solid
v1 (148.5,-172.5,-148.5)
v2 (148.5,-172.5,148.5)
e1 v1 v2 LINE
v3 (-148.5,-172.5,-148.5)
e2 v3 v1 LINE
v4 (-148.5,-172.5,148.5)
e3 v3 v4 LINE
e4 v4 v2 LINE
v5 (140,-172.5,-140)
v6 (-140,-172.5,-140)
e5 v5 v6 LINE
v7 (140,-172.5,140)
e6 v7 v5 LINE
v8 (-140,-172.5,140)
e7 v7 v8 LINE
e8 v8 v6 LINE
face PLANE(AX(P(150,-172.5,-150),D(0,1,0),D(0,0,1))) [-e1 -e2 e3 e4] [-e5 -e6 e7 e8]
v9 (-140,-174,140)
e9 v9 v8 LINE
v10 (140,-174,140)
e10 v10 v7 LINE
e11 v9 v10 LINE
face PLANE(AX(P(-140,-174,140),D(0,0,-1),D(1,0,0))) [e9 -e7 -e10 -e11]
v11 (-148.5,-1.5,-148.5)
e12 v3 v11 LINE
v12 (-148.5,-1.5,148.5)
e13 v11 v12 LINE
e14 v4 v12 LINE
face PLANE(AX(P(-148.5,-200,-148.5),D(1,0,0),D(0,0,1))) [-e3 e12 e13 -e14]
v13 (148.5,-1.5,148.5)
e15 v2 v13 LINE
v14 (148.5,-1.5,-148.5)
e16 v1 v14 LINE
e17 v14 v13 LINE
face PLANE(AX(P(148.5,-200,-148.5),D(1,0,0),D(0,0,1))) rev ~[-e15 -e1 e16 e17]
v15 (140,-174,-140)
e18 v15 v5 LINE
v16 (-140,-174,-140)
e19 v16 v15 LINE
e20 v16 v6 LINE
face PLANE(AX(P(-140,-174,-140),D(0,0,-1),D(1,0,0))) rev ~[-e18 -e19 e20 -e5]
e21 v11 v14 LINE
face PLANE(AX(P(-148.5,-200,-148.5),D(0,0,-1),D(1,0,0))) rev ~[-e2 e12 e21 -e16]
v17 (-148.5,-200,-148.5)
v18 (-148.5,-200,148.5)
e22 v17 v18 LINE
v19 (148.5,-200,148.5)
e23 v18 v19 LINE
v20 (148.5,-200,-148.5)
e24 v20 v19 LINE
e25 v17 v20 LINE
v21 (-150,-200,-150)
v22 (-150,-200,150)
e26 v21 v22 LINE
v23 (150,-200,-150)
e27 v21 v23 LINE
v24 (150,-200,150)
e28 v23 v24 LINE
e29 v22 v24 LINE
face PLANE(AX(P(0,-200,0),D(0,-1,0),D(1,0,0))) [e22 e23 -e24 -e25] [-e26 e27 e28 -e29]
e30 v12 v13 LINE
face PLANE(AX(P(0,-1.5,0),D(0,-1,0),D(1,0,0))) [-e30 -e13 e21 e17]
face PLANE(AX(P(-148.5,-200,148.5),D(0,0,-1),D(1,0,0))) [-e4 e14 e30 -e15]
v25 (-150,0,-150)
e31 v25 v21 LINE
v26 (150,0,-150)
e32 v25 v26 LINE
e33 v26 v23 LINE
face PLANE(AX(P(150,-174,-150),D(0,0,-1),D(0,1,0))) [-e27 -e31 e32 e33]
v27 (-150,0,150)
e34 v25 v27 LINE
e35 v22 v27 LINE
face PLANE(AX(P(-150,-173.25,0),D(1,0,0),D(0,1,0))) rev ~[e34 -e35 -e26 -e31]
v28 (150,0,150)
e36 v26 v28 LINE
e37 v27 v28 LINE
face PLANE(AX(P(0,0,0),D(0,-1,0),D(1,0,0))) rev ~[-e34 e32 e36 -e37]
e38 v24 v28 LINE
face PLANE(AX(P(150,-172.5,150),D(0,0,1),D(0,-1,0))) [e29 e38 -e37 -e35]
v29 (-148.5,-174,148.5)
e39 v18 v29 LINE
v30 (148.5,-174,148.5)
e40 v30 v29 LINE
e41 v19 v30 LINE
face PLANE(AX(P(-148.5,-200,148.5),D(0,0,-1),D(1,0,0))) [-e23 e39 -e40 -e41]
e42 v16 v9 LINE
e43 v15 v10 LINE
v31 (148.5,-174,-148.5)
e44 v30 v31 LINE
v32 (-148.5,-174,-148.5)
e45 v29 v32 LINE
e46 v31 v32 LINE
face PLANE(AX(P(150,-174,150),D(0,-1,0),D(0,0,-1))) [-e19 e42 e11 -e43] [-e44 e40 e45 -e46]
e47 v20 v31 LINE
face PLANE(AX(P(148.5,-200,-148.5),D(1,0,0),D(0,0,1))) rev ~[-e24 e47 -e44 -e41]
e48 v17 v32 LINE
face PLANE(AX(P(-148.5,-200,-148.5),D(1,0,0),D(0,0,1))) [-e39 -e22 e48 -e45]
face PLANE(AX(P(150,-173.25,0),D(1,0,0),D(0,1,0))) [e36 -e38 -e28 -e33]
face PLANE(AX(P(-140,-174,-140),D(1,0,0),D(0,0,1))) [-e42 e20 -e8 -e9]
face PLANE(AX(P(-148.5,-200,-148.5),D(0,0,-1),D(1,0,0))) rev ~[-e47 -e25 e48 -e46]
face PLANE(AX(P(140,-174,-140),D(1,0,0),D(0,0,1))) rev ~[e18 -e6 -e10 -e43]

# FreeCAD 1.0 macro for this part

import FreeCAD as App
import Part
import Sketcher

doc = App.newDocument("Part")
body = doc.addObject("PartDesign::Body", "Body")

sketch1 = doc.addObject("Sketcher::SketchObject", "Sketch")
body.addObject(sketch1)
sketch1.AttachmentSupport = (doc.XZ_Plane, [""])
sketch1.MapMode = "FlatFace"
sketch1.addGeometry(Part.LineSegment(App.Vector(-150, 150, 0), App.Vector(-150, -150, 0)), False)
sketch1.addGeometry(Part.LineSegment(App.Vector(-150, -150, 0), App.Vector(150, -150, 0)), False)
sketch1.addGeometry(Part.LineSegment(App.Vector(150, -150, 0), App.Vector(150, 150, 0)), False)
sketch1.addGeometry(Part.LineSegment(App.Vector(150, 150, 0), App.Vector(-150, 150, 0)), False)
sketch1.addConstraint(Sketcher.Constraint("Coincident", 0, 2, 1, 1))
sketch1.addConstraint(Sketcher.Constraint("Coincident", 1, 2, 2, 1))
sketch1.addConstraint(Sketcher.Constraint("Coincident", 2, 2, 3, 1))
sketch1.addConstraint(Sketcher.Constraint("Coincident", 3, 2, 0, 1))
sketch1.addConstraint(Sketcher.Constraint("Vertical", 0))
sketch1.addConstraint(Sketcher.Constraint("Horizontal", 1))
sketch1.addConstraint(Sketcher.Constraint("Vertical", 2))
sketch1.addConstraint(Sketcher.Constraint("Horizontal", 3))
sketch1.addConstraint(Sketcher.Constraint("Symmetric", 0, 2, 2, 2, -1, 1))
sketch1.addConstraint(Sketcher.Constraint("Equal", 3, 0))
sketch1.addConstraint(Sketcher.Constraint("DistanceX", 1, 1, 1, 2, 300.0))
pad1 = doc.addObject("PartDesign::Pad", "Pad")
body.addObject(pad1)
pad1.Profile = sketch1
pad1.Length = 200

sketch2 = doc.addObject("Sketcher::SketchObject", "Sketch001")
body.addObject(sketch2)
sketch2.AttachmentSupport = (doc.XZ_Plane, [""])
sketch2.MapMode = "FlatFace"
sketch2.AttachmentOffset = App.Placement(App.Vector(0, 0, 200), App.Rotation())
sketch2.addGeometry(Part.LineSegment(App.Vector(-148, 148, 0), App.Vector(-148, -148, 0)), False)
sketch2.addGeometry(Part.LineSegment(App.Vector(-148, -148, 0), App.Vector(148, -148, 0)), False)
sketch2.addGeometry(Part.LineSegment(App.Vector(148, -148, 0), App.Vector(148, 148, 0)), False)
sketch2.addGeometry(Part.LineSegment(App.Vector(148, 148, 0), App.Vector(-148, 148, 0)), False)
sketch2.addConstraint(Sketcher.Constraint("Coincident", 0, 2, 1, 1))
sketch2.addConstraint(Sketcher.Constraint("Coincident", 1, 2, 2, 1))
sketch2.addConstraint(Sketcher.Constraint("Coincident", 2, 2, 3, 1))
sketch2.addConstraint(Sketcher.Constraint("Coincident", 3, 2, 0, 1))
sketch2.addConstraint(Sketcher.Constraint("Vertical", 0))
sketch2.addConstraint(Sketcher.Constraint("Horizontal", 1))
sketch2.addConstraint(Sketcher.Constraint("Vertical", 2))
sketch2.addConstraint(Sketcher.Constraint("Horizontal", 3))
sketch2.addConstraint(Sketcher.Constraint("Symmetric", 0, 2, 2, 2, -1, 1))
sketch2.addConstraint(Sketcher.Constraint("Equal", 3, 0))
sketch2.addConstraint(Sketcher.Constraint("DistanceX", 1, 1, 1, 2, 297.0))
pocket1 = doc.addObject("PartDesign::Pocket", "Pocket")
body.addObject(pocket1)
pocket1.Profile = sketch2
pocket1.Length = 198.5

sketch3 = doc.addObject("Sketcher::SketchObject", "Sketch002")
body.addObject(sketch3)
sketch3.AttachmentSupport = (doc.YZ_Plane, [""])
sketch3.MapMode = "FlatFace"
sketch3.AttachmentOffset = App.Placement(App.Vector(0, 0, 150), App.Rotation())
sketch3.addGeometry(Part.LineSegment(App.Vector(-174, 150, 0), App.Vector(-174, -150, 0)), False)
sketch3.addGeometry(Part.LineSegment(App.Vector(-174, -150, 0), App.Vector(-172.5, -150, 0)), False)
sketch3.addGeometry(Part.LineSegment(App.Vector(-172.5, -150, 0), App.Vector(-172.5, 150, 0)), False)
sketch3.addGeometry(Part.LineSegment(App.Vector(-172.5, 150, 0), App.Vector(-174, 150, 0)), False)
sketch3.addConstraint(Sketcher.Constraint("Coincident", 0, 2, 1, 1))
sketch3.addConstraint(Sketcher.Constraint("Coincident", 1, 2, 2, 1))
sketch3.addConstraint(Sketcher.Constraint("Coincident", 2, 2, 3, 1))
sketch3.addConstraint(Sketcher.Constraint("Coincident", 3, 2, 0, 1))
sketch3.addConstraint(Sketcher.Constraint("Vertical", 0))
sketch3.addConstraint(Sketcher.Constraint("Horizontal", 1))
sketch3.addConstraint(Sketcher.Constraint("Vertical", 2))
sketch3.addConstraint(Sketcher.Constraint("Horizontal", 3))
sketch3.addConstraint(Sketcher.Constraint("DistanceY", 0, 2, 0, 1, 300.0))
sketch3.addConstraint(Sketcher.Constraint("DistanceX", 1, 1, 1, 2, 1.5))
sketch3.addConstraint(Sketcher.Constraint("DistanceX", 0, 2, -1, 1, 174.0))
sketch3.addConstraint(Sketcher.Constraint("DistanceY", 0, 2, -1, 1, 150.0))
pad2 = doc.addObject("PartDesign::Pad", "Pad001")
body.addObject(pad2)
pad2.Profile = sketch3
pad2.Length = 300
pad2.Reversed = True

sketch4 = doc.addObject("Sketcher::SketchObject", "Sketch003")
body.addObject(sketch4)
sketch4.AttachmentSupport = (doc.XZ_Plane, [""])
sketch4.MapMode = "FlatFace"
sketch4.AttachmentOffset = App.Placement(App.Vector(0, 0, 174), App.Rotation())
sketch4.addGeometry(Part.LineSegment(App.Vector(-140, 140, 0), App.Vector(-140, -140, 0)), False)
sketch4.addGeometry(Part.LineSegment(App.Vector(-140, -140, 0), App.Vector(140, -140, 0)), False)
sketch4.addGeometry(Part.LineSegment(App.Vector(140, -140, 0), App.Vector(140, 140, 0)), False)
sketch4.addGeometry(Part.LineSegment(App.Vector(140, 140, 0), App.Vector(-140, 140, 0)), False)
sketch4.addConstraint(Sketcher.Constraint("Coincident", 0, 2, 1, 1))
sketch4.addConstraint(Sketcher.Constraint("Coincident", 1, 2, 2, 1))
sketch4.addConstraint(Sketcher.Constraint("Coincident", 2, 2, 3, 1))
sketch4.addConstraint(Sketcher.Constraint("Coincident", 3, 2, 0, 1))
sketch4.addConstraint(Sketcher.Constraint("Vertical", 0))
sketch4.addConstraint(Sketcher.Constraint("Horizontal", 1))
sketch4.addConstraint(Sketcher.Constraint("Vertical", 2))
sketch4.addConstraint(Sketcher.Constraint("Horizontal", 3))
sketch4.addConstraint(Sketcher.Constraint("Symmetric", 0, 2, 2, 2, -1, 1))
sketch4.addConstraint(Sketcher.Constraint("Equal", 3, 0))
sketch4.addConstraint(Sketcher.Constraint("DistanceX", 1, 1, 1, 2, 280.0))
pocket2 = doc.addObject("PartDesign::Pocket", "Pocket001")
body.addObject(pocket2)
pocket2.Profile = sketch4
pocket2.Length = 25

doc.recompute()
